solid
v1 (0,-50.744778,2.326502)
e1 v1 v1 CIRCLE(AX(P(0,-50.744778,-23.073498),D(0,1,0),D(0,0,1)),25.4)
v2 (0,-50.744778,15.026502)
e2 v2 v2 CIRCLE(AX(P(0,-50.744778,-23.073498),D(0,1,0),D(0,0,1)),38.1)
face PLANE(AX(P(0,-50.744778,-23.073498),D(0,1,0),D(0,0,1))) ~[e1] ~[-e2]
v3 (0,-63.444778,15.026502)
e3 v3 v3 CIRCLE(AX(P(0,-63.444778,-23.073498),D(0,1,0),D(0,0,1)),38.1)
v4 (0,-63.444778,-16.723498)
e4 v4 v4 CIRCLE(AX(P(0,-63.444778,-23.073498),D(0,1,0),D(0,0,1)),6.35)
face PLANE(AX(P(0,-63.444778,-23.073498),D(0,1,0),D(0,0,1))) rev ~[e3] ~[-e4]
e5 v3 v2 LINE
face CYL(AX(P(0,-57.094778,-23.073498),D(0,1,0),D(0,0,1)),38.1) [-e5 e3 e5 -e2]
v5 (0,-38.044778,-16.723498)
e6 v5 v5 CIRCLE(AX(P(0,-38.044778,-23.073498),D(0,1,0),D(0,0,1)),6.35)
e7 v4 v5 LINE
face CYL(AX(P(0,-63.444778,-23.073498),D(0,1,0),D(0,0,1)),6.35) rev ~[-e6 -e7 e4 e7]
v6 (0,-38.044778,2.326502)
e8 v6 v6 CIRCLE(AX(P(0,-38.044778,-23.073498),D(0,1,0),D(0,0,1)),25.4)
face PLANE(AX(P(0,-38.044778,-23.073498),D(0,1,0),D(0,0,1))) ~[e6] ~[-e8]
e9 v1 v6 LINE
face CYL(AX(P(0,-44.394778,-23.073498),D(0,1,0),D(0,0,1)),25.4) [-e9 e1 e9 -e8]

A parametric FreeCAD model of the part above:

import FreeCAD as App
import Part
import Sketcher

V = App.Vector
Q = App.Units.Quantity


def add_polygon(sketch, points):
    """Adds a closed chain of lines whose ends are joined by coincident constraints."""
    first, n = sketch.GeometryCount, len(points)
    for a, b in zip(points, points[1:] + points[:1]):
        sketch.addGeometry(Part.LineSegment(App.Vector(*a, 0), App.Vector(*b, 0)), False)
    for i in range(n):
        sketch.addConstraint(Sketcher.Constraint("Coincident", first + i, 2, first + (i + 1) % n, 1))

doc = App.newDocument("Part")
body = doc.addObject("PartDesign::Body", "Body")

# Sketch on YZ plane
sketch1 = body.newObject("Sketcher::SketchObject", "Sketch")
sketch1.AttachmentSupport = (doc.getObject("YZ_Plane"), [""])
sketch1.MapMode = "FlatFace"
add_polygon(sketch1, [(-63.444778, 15.026502), (-63.444778, -16.723498), (-38.044778, -16.723498), (-38.044778, 2.326502), (-50.744778, 2.326502), (-50.744778, 15.026502)])  # lines 0-5
sketch1.addGeometry(Part.LineSegment(V(-63.444778, -23.073498, 0), V(-38.044778, -23.073498, 0)), True)  # axis
sketch1.addConstraint(Sketcher.Constraint("Vertical", 0))
sketch1.addConstraint(Sketcher.Constraint("Horizontal", 1))
sketch1.addConstraint(Sketcher.Constraint("Vertical", 2))
sketch1.addConstraint(Sketcher.Constraint("Horizontal", 3))
sketch1.addConstraint(Sketcher.Constraint("Vertical", 4))
sketch1.addConstraint(Sketcher.Constraint("Horizontal", 5))
sketch1.addConstraint(Sketcher.Constraint("Horizontal", 6))
sketch1.addConstraint(Sketcher.Constraint("Vertical", 5, 2, 6, 1))
sketch1.addConstraint(Sketcher.Constraint("Vertical", 2, 2, 6, 2))
sketch1.addConstraint(Sketcher.Constraint("Equal", 3, 5))
sketch1.addConstraint(Sketcher.Constraint("Equal", 5, 4))
sketch1.addConstraint(Sketcher.Constraint("DistanceX", 1, 1, 1, 2, Q("1 in")))
sketch1.addConstraint(Sketcher.Constraint("DistanceY", 6, 1, 3, 2, Q("1 in")))
sketch1.addConstraint(Sketcher.Constraint("DistanceY", 0, 2, 0, 1, Q("1.25 in")))
sketch1.addConstraint(Sketcher.Constraint("DistanceY", 0, 2, -1, 1, 16.723498))
sketch1.addConstraint(Sketcher.Constraint("DistanceX", 0, 2, -1, 1, 63.444778))
revolution = body.newObject("PartDesign::Revolution", "Revolution")
revolution.Profile = sketch1
revolution.ReferenceAxis = (sketch1, ["Axis0"])
revolution.Angle = 360

doc.recompute()
